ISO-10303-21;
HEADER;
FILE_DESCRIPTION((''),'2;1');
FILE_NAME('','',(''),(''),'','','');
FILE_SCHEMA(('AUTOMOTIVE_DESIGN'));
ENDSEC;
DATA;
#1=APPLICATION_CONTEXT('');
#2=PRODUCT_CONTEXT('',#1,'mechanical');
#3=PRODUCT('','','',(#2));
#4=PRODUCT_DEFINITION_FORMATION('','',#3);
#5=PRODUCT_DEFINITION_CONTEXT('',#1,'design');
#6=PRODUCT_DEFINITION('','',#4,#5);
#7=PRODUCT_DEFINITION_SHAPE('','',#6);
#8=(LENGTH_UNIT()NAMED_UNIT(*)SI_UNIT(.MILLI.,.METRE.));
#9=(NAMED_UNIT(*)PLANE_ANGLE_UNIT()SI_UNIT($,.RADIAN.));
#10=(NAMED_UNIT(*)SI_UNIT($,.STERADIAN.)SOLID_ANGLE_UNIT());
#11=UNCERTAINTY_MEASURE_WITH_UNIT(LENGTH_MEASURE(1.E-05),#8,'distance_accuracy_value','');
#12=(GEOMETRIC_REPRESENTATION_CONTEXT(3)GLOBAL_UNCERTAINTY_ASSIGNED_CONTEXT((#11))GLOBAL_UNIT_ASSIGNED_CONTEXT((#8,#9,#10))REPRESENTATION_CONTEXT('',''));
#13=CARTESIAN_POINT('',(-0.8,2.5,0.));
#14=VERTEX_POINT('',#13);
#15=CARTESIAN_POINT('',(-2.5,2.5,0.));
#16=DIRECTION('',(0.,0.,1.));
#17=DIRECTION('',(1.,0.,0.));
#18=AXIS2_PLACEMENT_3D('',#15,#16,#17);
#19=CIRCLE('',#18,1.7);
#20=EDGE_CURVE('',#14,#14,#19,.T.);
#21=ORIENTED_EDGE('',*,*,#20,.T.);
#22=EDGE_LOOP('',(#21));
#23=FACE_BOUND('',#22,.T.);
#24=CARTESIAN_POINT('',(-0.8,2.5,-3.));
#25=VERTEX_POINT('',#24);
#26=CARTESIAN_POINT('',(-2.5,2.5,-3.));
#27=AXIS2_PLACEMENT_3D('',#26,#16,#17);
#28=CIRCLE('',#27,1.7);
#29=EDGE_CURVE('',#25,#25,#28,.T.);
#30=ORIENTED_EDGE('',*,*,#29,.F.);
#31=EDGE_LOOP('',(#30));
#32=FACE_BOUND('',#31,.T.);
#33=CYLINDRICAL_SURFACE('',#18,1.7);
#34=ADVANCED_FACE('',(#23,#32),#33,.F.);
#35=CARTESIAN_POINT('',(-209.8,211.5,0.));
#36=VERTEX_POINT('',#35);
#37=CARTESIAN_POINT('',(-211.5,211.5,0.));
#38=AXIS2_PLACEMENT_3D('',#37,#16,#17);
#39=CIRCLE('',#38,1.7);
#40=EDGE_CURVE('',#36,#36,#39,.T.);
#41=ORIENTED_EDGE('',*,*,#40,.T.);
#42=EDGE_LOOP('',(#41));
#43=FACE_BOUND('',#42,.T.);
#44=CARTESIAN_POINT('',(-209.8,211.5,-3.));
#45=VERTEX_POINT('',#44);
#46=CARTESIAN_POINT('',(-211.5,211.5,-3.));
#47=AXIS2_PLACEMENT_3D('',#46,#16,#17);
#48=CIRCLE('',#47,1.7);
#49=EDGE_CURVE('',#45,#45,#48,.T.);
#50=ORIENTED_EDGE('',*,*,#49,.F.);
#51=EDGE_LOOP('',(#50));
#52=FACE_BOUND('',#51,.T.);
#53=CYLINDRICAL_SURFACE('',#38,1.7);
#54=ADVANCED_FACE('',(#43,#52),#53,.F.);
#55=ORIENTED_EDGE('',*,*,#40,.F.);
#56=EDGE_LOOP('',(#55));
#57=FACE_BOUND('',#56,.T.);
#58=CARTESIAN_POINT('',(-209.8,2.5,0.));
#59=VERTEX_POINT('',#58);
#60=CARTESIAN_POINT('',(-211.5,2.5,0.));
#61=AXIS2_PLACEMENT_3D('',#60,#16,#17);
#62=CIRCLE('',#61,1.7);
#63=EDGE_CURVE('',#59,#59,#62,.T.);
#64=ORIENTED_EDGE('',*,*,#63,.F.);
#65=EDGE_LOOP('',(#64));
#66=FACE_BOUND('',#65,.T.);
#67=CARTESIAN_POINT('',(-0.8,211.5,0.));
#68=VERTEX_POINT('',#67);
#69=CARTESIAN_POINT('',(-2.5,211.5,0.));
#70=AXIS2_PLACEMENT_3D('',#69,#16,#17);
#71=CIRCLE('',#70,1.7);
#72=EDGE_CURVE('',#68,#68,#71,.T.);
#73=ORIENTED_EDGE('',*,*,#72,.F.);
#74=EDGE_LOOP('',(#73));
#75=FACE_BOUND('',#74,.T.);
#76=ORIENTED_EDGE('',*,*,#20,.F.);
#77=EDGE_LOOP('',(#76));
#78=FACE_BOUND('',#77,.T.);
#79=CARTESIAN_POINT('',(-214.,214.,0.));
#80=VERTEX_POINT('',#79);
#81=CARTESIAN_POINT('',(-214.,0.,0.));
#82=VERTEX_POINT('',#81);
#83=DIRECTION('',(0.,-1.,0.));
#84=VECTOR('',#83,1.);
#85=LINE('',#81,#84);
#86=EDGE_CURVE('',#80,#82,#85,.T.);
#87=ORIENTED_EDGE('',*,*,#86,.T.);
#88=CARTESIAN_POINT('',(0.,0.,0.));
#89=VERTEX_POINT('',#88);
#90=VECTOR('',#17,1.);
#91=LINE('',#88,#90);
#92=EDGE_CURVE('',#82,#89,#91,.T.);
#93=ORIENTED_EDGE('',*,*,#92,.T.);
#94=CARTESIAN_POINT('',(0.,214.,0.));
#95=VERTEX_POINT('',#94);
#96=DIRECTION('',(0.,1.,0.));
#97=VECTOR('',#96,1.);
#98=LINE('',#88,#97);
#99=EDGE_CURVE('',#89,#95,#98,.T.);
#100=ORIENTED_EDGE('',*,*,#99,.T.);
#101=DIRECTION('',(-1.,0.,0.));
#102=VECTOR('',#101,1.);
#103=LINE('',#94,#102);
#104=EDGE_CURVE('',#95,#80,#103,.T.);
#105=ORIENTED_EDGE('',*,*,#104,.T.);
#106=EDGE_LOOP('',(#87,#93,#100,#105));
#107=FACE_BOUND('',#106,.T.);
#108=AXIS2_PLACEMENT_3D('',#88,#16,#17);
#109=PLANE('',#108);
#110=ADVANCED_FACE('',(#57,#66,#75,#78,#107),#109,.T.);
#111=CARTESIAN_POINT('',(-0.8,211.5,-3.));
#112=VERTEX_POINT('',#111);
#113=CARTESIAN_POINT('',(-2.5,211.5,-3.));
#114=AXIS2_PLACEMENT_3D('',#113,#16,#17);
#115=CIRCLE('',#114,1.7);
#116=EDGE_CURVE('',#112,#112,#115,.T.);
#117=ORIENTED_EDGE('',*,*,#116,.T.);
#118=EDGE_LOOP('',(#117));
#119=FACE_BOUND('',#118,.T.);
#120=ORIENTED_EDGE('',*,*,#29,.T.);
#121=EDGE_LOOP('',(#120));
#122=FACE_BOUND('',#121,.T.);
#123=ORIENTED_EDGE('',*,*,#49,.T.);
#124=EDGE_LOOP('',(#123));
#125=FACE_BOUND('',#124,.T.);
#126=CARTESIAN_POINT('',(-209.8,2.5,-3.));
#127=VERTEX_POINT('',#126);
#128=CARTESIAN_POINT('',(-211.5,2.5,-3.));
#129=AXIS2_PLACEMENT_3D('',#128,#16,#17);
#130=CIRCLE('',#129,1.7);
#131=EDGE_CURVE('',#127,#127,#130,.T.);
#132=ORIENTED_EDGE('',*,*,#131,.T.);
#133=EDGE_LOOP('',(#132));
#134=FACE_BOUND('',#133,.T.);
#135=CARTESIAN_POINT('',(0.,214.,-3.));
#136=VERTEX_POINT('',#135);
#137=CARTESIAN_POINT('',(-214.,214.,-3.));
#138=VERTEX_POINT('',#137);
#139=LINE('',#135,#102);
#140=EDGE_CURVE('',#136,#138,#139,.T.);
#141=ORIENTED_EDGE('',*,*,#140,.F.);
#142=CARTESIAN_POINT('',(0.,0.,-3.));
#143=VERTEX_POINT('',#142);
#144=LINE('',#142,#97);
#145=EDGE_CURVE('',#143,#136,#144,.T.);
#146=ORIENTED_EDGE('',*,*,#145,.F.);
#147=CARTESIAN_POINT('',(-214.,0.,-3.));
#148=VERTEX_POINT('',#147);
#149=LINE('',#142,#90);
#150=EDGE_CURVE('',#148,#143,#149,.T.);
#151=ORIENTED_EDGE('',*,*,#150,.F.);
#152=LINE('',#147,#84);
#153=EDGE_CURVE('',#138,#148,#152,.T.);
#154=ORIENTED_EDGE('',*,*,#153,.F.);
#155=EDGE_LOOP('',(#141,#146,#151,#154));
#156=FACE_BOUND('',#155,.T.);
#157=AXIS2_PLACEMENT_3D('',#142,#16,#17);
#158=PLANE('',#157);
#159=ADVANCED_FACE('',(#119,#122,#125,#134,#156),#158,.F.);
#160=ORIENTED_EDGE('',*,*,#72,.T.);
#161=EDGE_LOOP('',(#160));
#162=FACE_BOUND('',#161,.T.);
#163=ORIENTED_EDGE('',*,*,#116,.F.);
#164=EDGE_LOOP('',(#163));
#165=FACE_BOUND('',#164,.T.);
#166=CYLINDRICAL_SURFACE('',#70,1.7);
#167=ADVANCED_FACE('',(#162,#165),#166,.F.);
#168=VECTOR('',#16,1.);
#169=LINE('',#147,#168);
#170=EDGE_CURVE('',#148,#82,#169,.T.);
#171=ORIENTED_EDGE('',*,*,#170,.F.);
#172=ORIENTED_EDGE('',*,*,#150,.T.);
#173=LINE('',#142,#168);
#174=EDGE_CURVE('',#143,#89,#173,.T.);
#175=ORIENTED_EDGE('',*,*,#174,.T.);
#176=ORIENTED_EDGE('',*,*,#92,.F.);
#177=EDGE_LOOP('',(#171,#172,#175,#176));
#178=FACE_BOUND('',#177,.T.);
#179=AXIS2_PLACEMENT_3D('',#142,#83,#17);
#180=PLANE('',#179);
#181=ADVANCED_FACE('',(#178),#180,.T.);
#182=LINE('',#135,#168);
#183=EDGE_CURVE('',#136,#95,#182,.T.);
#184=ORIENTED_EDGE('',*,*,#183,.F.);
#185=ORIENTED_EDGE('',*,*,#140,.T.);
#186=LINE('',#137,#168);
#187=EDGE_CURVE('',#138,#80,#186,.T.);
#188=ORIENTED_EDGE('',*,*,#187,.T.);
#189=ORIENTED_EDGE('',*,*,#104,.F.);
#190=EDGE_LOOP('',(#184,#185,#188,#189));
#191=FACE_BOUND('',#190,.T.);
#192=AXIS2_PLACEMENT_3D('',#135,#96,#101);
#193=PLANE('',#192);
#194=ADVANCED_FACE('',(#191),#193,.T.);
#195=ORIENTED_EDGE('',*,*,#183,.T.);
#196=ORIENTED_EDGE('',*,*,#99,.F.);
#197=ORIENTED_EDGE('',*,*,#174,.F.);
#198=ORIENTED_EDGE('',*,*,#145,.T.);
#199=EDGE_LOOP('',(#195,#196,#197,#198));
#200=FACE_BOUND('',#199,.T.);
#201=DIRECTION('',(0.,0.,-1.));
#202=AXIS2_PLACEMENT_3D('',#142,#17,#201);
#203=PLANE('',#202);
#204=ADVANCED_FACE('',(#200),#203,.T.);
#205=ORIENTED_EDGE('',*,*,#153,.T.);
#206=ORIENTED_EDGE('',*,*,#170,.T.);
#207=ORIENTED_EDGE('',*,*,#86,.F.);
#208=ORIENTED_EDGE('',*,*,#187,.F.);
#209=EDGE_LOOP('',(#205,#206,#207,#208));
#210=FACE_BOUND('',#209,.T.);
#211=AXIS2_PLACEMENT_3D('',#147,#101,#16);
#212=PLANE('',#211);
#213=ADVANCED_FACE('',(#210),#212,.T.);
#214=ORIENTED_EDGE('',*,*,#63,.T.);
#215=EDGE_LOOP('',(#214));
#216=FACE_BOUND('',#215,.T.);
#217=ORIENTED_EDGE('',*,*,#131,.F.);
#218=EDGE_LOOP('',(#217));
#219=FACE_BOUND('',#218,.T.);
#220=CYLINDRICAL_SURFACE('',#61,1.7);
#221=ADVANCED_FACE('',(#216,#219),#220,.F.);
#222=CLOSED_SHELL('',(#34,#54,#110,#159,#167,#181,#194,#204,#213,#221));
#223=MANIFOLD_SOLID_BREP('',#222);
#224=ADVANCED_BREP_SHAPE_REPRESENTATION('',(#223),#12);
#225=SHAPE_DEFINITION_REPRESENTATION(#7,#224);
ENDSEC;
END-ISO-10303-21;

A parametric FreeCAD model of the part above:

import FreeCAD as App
import Part
import Sketcher


def add_polygon(sketch, points):
    """Adds a closed chain of lines whose ends are joined by coincident constraints."""
    first, n = sketch.GeometryCount, len(points)
    for a, b in zip(points, points[1:] + points[:1]):
        sketch.addGeometry(Part.LineSegment(App.Vector(*a, 0), App.Vector(*b, 0)), False)
    for i in range(n):
        sketch.addConstraint(Sketcher.Constraint("Coincident", first + i, 2, first + (i + 1) % n, 1))

doc = App.newDocument("Part")
body = doc.addObject("PartDesign::Body", "Body")

sketch1 = body.newObject("Sketcher::SketchObject", "Sketch")
sketch1.AttachmentSupport = (doc.getObject("XY_Plane"), [""])
sketch1.MapMode = "FlatFace"
add_polygon(sketch1, [(-214, 214), (-214, 0), (0, 0), (0, 214)])
sketch1.addConstraint([
    Sketcher.Constraint("Vertical", 0),
    Sketcher.Constraint("Horizontal", 1),
    Sketcher.Constraint("Vertical", 2),
    Sketcher.Constraint("Horizontal", 3),
    Sketcher.Constraint("Coincident", 1, 2, -1, 1),
    Sketcher.Constraint("Equal", 3, 0),
    Sketcher.Constraint("DistanceX", 1, 1, 1, 2, 214.0),
])
pad1 = body.newObject("PartDesign::Pad", "Pad")
pad1.Profile = sketch1
pad1.Length = 3
pad1.Reversed = True

sketch2 = body.newObject("Sketcher::SketchObject", "Sketch001")
sketch2.AttachmentSupport = (doc.getObject("XY_Plane"), [""])
sketch2.MapMode = "FlatFace"
sketch2.addGeometry([
    Part.Circle(App.Vector(-2.5, 211.5, 0), App.Vector(0, 0, 1), 1.7),
    Part.Circle(App.Vector(-2.5, 2.5, 0), App.Vector(0, 0, 1), 1.7),
    Part.Circle(App.Vector(-211.5, 211.5, 0), App.Vector(0, 0, 1), 1.7),
    Part.Circle(App.Vector(-211.5, 2.5, 0), App.Vector(0, 0, 1), 1.7),
], False)
sketch2.addConstraint([
    Sketcher.Constraint("Equal", 0, 1),
    Sketcher.Constraint("Equal", 1, 2),
    Sketcher.Constraint("Equal", 2, 3),
    Sketcher.Constraint("Horizontal", 0, 3, 2, 3),
    Sketcher.Constraint("Horizontal", 1, 3, 3, 3),
    Sketcher.Constraint("Vertical", 0, 3, 1, 3),
    Sketcher.Constraint("Vertical", 2, 3, 3, 3),
    Sketcher.Constraint("Diameter", 0, 3.4),
    Sketcher.Constraint("DistanceY", 1, 3, 0, 3, 209.0),
    Sketcher.Constraint("DistanceX", 2, 3, 0, 3, 209.0),
    Sketcher.Constraint("DistanceX", 0, 3, -1, 1, 2.5),
    Sketcher.Constraint("DistanceY", -1, 1, 0, 3, 211.5),
])
doc.recompute()
hole = body.newObject("PartDesign::Hole", "Hole")
hole.Profile = sketch2
hole.ThreadType = "None"
hole.Diameter = 3.4
hole.DepthType = "Dimension"
hole.Depth = 3
hole.DrillPoint = "Flat"

doc.recompute()
